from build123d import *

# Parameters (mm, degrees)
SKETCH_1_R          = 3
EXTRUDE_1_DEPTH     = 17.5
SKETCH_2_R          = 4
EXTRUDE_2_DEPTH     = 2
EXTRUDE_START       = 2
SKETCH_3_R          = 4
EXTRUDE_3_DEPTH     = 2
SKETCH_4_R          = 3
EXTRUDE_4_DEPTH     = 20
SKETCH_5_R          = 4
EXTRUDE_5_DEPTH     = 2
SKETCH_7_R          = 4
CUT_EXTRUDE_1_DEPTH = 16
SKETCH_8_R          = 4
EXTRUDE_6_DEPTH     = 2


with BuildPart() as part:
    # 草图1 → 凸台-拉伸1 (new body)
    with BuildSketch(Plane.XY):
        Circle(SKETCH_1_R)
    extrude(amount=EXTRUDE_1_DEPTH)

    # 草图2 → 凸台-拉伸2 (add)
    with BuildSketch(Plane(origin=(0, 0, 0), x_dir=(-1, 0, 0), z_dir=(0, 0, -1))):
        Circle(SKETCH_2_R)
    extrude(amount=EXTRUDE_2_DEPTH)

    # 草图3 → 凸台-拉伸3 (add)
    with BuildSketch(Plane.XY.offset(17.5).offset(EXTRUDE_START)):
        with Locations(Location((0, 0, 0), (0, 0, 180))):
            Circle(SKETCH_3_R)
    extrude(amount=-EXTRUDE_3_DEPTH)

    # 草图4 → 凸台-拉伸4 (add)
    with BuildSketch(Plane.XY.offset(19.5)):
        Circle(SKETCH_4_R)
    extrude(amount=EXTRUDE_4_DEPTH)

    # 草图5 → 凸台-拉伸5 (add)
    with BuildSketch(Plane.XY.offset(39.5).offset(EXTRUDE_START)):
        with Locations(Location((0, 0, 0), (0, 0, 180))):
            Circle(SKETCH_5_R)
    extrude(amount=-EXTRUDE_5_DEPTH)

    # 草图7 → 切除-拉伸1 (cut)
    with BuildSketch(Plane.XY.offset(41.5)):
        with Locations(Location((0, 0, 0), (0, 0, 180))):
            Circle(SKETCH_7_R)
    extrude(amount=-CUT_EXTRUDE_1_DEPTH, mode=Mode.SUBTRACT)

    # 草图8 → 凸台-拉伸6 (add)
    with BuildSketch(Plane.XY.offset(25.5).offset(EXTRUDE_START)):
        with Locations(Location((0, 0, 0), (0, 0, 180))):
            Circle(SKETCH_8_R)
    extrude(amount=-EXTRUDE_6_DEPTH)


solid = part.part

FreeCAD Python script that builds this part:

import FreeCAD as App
import Part
import Sketcher
from FreeCAD import Vector

doc = App.newDocument("Part")
params = doc.addObject("Spreadsheet::Sheet", "Params")
for row, (alias, value) in enumerate([
    ("sketch1_diameter", "6 mm"),
    ("pad1_length", "17.5 mm"),
    ("sketch2_diameter", "8 mm"),
    ("pad2_length", "2 mm"),
    ("sketch3_diameter", "8 mm"),
    ("pad3_length", "2 mm"),
    ("sketch4_diameter", "6 mm"),
    ("pad4_length", "20 mm"),
    ("sketch5_diameter", "8 mm"),
    ("pad5_length", "2 mm"),
    ("sketch6_diameter", "8 mm"),
    ("pocket1_length", "16 mm"),
    ("sketch7_diameter", "8 mm"),
    ("pad6_length", "2 mm"),
], start=1):
    params.set(f"A{row}", alias)
    params.set(f"B{row}", "=" + value)
    params.setAlias(f"B{row}", alias)

body = doc.addObject("PartDesign::Body", "Body")

sketch1 = body.newObject("Sketcher::SketchObject", "Sketch")
sketch1.AttachmentSupport = (doc.getObject("XY_Plane"), [""])
sketch1.MapMode = "FlatFace"
sketch1.addGeometry(Part.Circle(Vector(0, 0, 0), Vector(0, 0, 1), 3), False)
sketch1.addConstraint([
    Sketcher.Constraint("Coincident", 0, 3, -1, 1),
    Sketcher.Constraint("Diameter", 0, 6.0),
])
sketch1.setExpression("Constraints[1]", "Params.sketch1_diameter")
pad1 = body.newObject("PartDesign::Pad", "Pad")
pad1.Profile = sketch1
pad1.setExpression("Length", "Params.pad1_length")

sketch2 = body.newObject("Sketcher::SketchObject", "Sketch001")
sketch2.AttachmentSupport = (doc.getObject("XY_Plane"), [""])
sketch2.MapMode = "FlatFace"
sketch2.addGeometry(Part.Circle(Vector(0, 0, 0), Vector(0, 0, 1), 4), False)
sketch2.addConstraint([
    Sketcher.Constraint("Coincident", 0, 3, -1, 1),
    Sketcher.Constraint("Diameter", 0, 8.0),
])
sketch2.setExpression("Constraints[1]", "Params.sketch2_diameter")
pad2 = body.newObject("PartDesign::Pad", "Pad001")
pad2.Profile = sketch2
pad2.setExpression("Length", "Params.pad2_length")
pad2.Reversed = True

sketch3 = body.newObject("Sketcher::SketchObject", "Sketch002")
sketch3.AttachmentSupport = (doc.getObject("XY_Plane"), [""])
sketch3.MapMode = "FlatFace"
sketch3.AttachmentOffset = App.Placement(Vector(0, 0, 19.5), App.Rotation())
sketch3.addGeometry(Part.Circle(Vector(0, 0, 0), Vector(0, 0, 1), 4), False)
sketch3.addConstraint([
    Sketcher.Constraint("Coincident", 0, 3, -1, 1),
    Sketcher.Constraint("Diameter", 0, 8.0),
])
sketch3.setExpression("Constraints[1]", "Params.sketch3_diameter")
pad3 = body.newObject("PartDesign::Pad", "Pad002")
pad3.Profile = sketch3
pad3.setExpression("Length", "Params.pad3_length")
pad3.Reversed = True

sketch4 = body.newObject("Sketcher::SketchObject", "Sketch003")
sketch4.AttachmentSupport = (doc.getObject("XY_Plane"), [""])
sketch4.MapMode = "FlatFace"
sketch4.AttachmentOffset = App.Placement(Vector(0, 0, 19.5), App.Rotation())
sketch4.addGeometry(Part.Circle(Vector(0, 0, 0), Vector(0, 0, 1), 3), False)
sketch4.addConstraint([
    Sketcher.Constraint("Coincident", 0, 3, -1, 1),
    Sketcher.Constraint("Diameter", 0, 6.0),
])
sketch4.setExpression("Constraints[1]", "Params.sketch4_diameter")
pad4 = body.newObject("PartDesign::Pad", "Pad003")
pad4.Profile = sketch4
pad4.setExpression("Length", "Params.pad4_length")

sketch5 = body.newObject("Sketcher::SketchObject", "Sketch004")
sketch5.AttachmentSupport = (doc.getObject("XY_Plane"), [""])
sketch5.MapMode = "FlatFace"
sketch5.AttachmentOffset = App.Placement(Vector(0, 0, 41.5), App.Rotation())
sketch5.addGeometry(Part.Circle(Vector(0, 0, 0), Vector(0, 0, 1), 4), False)
sketch5.addConstraint([
    Sketcher.Constraint("Coincident", 0, 3, -1, 1),
    Sketcher.Constraint("Diameter", 0, 8.0),
])
sketch5.setExpression("Constraints[1]", "Params.sketch5_diameter")
pad5 = body.newObject("PartDesign::Pad", "Pad004")
pad5.Profile = sketch5
pad5.setExpression("Length", "Params.pad5_length")
pad5.Reversed = True

sketch6 = body.newObject("Sketcher::SketchObject", "Sketch005")
sketch6.AttachmentSupport = (doc.getObject("XY_Plane"), [""])
sketch6.MapMode = "FlatFace"
sketch6.AttachmentOffset = App.Placement(Vector(0, 0, 41.5), App.Rotation())
sketch6.addGeometry(Part.Circle(Vector(0, 0, 0), Vector(0, 0, 1), 4), False)
sketch6.addConstraint([
    Sketcher.Constraint("Coincident", 0, 3, -1, 1),
    Sketcher.Constraint("Diameter", 0, 8.0),
])
sketch6.setExpression("Constraints[1]", "Params.sketch6_diameter")
pocket1 = body.newObject("PartDesign::Pocket", "Pocket")
pocket1.Profile = sketch6
pocket1.setExpression("Length", "Params.pocket1_length")

sketch7 = body.newObject("Sketcher::SketchObject", "Sketch006")
sketch7.AttachmentSupport = (doc.getObject("XY_Plane"), [""])
sketch7.MapMode = "FlatFace"
sketch7.AttachmentOffset = App.Placement(Vector(0, 0, 27.5), App.Rotation())
sketch7.addGeometry(Part.Circle(Vector(0, 0, 0), Vector(0, 0, 1), 4), False)
sketch7.addConstraint([
    Sketcher.Constraint("Coincident", 0, 3, -1, 1),
    Sketcher.Constraint("Diameter", 0, 8.0),
])
sketch7.setExpression("Constraints[1]", "Params.sketch7_diameter")
pad6 = body.newObject("PartDesign::Pad", "Pad005")
pad6.Profile = sketch7
pad6.setExpression("Length", "Params.pad6_length")
pad6.Reversed = True

doc.recompute()
